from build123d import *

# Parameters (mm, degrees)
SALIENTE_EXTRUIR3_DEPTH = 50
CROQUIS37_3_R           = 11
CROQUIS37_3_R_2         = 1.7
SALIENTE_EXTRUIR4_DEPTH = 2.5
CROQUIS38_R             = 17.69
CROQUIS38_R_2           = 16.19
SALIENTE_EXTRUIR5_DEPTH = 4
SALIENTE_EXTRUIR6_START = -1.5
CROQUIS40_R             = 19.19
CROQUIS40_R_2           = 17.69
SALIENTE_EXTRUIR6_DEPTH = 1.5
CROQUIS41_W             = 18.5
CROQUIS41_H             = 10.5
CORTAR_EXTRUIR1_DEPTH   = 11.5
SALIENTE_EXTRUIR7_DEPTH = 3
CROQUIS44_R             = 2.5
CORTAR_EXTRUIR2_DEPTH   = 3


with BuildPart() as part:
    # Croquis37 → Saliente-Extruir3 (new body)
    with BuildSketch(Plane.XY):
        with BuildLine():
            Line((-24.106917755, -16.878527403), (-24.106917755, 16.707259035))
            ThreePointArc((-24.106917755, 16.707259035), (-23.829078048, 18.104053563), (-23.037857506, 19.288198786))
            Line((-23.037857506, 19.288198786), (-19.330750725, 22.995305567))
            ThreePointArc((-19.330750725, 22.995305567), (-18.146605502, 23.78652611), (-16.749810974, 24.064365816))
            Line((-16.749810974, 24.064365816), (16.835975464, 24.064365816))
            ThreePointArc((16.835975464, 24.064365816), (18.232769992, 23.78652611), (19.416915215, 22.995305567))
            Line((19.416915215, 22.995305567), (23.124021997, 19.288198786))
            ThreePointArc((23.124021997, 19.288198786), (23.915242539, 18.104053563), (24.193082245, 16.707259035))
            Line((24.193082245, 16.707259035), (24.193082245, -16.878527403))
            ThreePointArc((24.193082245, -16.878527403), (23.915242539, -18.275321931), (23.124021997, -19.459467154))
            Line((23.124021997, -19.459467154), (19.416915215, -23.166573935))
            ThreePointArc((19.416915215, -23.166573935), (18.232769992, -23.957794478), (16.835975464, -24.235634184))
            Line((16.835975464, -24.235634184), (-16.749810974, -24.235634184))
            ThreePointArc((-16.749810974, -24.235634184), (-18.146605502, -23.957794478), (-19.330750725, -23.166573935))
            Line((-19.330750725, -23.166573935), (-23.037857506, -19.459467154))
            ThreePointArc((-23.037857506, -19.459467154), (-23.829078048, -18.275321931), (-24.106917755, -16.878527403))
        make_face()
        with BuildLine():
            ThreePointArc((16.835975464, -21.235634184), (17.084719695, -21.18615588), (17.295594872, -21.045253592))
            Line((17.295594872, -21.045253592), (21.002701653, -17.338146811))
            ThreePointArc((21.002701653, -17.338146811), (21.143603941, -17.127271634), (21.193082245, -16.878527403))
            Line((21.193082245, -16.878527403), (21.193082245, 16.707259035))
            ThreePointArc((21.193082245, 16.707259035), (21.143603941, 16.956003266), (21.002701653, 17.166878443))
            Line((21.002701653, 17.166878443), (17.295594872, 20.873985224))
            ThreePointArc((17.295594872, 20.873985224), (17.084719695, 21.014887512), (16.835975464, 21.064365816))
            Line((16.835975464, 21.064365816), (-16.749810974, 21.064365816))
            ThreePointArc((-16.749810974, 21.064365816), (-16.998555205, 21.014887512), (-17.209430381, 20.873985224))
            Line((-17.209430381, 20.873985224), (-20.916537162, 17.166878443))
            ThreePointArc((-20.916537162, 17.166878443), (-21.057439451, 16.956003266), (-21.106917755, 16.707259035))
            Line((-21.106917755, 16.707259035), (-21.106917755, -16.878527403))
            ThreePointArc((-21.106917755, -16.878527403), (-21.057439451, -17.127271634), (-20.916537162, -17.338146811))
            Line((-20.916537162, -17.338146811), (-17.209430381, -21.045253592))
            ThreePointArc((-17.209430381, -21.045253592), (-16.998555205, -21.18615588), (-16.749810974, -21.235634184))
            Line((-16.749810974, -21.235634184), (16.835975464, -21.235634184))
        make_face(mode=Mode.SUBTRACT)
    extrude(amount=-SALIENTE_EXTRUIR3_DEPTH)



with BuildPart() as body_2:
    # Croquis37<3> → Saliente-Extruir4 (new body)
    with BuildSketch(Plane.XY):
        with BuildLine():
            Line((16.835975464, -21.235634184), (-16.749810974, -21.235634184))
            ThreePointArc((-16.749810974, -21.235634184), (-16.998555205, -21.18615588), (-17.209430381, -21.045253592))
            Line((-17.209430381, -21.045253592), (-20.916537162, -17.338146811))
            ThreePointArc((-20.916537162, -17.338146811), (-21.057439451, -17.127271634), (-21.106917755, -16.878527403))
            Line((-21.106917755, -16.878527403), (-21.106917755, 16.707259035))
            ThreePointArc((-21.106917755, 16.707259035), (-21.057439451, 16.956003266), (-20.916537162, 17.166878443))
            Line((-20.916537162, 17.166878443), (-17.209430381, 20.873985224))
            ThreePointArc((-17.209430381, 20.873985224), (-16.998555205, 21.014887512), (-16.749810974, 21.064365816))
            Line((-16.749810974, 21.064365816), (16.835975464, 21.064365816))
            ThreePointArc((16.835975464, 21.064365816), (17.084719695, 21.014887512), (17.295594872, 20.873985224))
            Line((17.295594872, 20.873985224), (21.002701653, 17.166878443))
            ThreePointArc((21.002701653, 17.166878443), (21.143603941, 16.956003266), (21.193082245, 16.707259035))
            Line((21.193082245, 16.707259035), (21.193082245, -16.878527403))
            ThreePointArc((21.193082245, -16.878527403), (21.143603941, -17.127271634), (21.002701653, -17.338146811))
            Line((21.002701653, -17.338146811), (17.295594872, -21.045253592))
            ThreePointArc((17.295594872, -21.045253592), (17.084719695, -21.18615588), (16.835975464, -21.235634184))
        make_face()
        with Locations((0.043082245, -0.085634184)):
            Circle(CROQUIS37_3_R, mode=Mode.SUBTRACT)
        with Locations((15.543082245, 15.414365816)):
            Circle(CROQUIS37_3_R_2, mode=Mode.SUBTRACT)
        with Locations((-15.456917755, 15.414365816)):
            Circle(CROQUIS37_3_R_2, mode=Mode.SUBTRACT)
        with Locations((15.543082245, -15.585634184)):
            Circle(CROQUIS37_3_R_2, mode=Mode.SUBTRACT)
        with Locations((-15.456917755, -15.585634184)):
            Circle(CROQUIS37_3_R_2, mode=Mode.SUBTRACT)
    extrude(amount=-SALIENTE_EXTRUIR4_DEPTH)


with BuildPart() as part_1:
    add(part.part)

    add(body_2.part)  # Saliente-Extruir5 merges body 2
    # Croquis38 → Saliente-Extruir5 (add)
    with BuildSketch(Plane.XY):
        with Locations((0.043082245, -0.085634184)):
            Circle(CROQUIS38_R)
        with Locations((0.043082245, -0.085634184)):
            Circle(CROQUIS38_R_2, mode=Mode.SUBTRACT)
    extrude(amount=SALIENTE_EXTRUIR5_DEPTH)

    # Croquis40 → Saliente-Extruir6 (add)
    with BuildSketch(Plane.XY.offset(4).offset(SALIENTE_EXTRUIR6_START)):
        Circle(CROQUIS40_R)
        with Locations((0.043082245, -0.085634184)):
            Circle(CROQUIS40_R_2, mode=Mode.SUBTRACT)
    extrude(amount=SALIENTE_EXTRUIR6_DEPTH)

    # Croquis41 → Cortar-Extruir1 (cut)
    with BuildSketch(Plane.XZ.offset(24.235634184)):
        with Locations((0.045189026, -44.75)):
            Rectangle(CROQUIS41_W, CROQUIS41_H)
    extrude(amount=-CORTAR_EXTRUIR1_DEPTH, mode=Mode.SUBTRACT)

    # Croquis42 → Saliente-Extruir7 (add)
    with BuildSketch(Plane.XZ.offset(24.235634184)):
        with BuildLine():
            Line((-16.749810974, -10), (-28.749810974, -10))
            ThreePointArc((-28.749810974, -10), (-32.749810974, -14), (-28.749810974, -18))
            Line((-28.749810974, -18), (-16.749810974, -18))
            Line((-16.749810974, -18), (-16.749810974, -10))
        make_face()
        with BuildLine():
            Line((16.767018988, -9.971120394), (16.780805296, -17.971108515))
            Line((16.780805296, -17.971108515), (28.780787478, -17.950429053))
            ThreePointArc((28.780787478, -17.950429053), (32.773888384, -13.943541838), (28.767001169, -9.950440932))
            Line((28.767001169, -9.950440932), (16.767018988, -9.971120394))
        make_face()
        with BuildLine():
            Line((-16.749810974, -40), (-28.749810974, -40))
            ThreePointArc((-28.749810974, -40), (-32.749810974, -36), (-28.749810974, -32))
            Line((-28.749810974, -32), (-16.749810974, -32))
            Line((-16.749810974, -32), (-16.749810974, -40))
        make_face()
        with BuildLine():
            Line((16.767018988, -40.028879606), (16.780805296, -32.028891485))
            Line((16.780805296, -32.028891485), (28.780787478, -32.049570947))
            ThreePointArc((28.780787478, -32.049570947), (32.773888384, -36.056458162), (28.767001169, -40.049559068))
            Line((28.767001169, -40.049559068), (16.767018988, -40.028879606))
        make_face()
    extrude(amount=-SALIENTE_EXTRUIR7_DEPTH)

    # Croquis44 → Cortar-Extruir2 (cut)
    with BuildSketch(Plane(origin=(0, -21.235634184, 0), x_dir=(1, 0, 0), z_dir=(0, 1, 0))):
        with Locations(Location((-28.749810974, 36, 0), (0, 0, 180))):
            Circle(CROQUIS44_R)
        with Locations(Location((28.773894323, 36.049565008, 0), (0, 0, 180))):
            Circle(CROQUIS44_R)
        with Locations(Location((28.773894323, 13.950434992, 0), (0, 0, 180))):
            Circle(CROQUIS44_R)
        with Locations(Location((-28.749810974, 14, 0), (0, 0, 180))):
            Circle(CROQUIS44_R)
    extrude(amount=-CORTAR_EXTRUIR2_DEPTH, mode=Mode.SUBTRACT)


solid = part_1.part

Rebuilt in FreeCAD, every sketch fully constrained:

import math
import FreeCAD as App
import Part
import Sketcher
from FreeCAD import Vector


def add_polygon(sketch, points):
    """Adds a closed chain of lines whose ends are joined by coincident constraints."""
    first, n = sketch.GeometryCount, len(points)
    for a, b in zip(points, points[1:] + points[:1]):
        sketch.addGeometry(Part.LineSegment(App.Vector(*a, 0), App.Vector(*b, 0)), False)
    for i in range(n):
        sketch.addConstraint(Sketcher.Constraint("Coincident", first + i, 2, first + (i + 1) % n, 1))

doc = App.newDocument("Part")
body = doc.addObject("PartDesign::Body", "Body")

# Sketch on XY plane
sketch1 = body.newObject("Sketcher::SketchObject", "Sketch")
sketch1.AttachmentSupport = (doc.getObject("XY_Plane"), [""])
sketch1.MapMode = "FlatFace"
sketch1.addGeometry(Part.LineSegment(Vector(-24.11, 16.71, 0), Vector(-24.11, -16.88, 0)), False)
sketch1.addGeometry(Part.ArcOfCircle(Part.Circle(Vector(-20.46, -16.88, 0), Vector(0, 0, 1), 3.65), math.radians(-180), math.radians(-135)), False)
sketch1.addGeometry(Part.LineSegment(Vector(-23.04, -19.46, 0), Vector(-19.33, -23.17, 0)), False)
sketch1.addGeometry(Part.ArcOfCircle(Part.Circle(Vector(-16.75, -20.59, 0), Vector(0, 0, 1), 3.65), math.radians(-135), math.radians(-90)), False)
sketch1.addGeometry(Part.LineSegment(Vector(-16.75, -24.24, 0), Vector(16.84, -24.24, 0)), False)
sketch1.addGeometry(Part.ArcOfCircle(Part.Circle(Vector(16.84, -20.59, 0), Vector(0, 0, 1), 3.65), math.radians(-90), math.radians(-45)), False)
sketch1.addGeometry(Part.LineSegment(Vector(19.42, -23.17, 0), Vector(23.12, -19.46, 0)), False)
sketch1.addGeometry(Part.ArcOfCircle(Part.Circle(Vector(20.54, -16.88, 0), Vector(0, 0, 1), 3.65), math.radians(-45), math.radians(0)), False)
sketch1.addGeometry(Part.LineSegment(Vector(24.19, -16.88, 0), Vector(24.19, 16.71, 0)), False)
sketch1.addGeometry(Part.ArcOfCircle(Part.Circle(Vector(20.54, 16.71, 0), Vector(0, 0, 1), 3.65), math.radians(0), math.radians(45)), False)
sketch1.addGeometry(Part.LineSegment(Vector(23.12, 19.29, 0), Vector(19.42, 23, 0)), False)
sketch1.addGeometry(Part.ArcOfCircle(Part.Circle(Vector(16.84, 20.41, 0), Vector(0, 0, 1), 3.65), math.radians(45), math.radians(90)), False)
sketch1.addGeometry(Part.LineSegment(Vector(16.84, 24.06, 0), Vector(-16.75, 24.06, 0)), False)
sketch1.addGeometry(Part.ArcOfCircle(Part.Circle(Vector(-16.75, 20.41, 0), Vector(0, 0, 1), 3.65), math.radians(90), math.radians(135)), False)
sketch1.addGeometry(Part.LineSegment(Vector(-19.33, 23, 0), Vector(-23.04, 19.29, 0)), False)
sketch1.addGeometry(Part.ArcOfCircle(Part.Circle(Vector(-20.46, 16.71, 0), Vector(0, 0, 1), 3.65), math.radians(135), math.radians(180)), False)
sketch1.addGeometry(Part.LineSegment(Vector(16.84, -21.24, 0), Vector(-16.75, -21.24, 0)), False)
sketch1.addGeometry(Part.ArcOfCircle(Part.Circle(Vector(-16.75, -20.59, 0), Vector(0, 0, 1), 0.65), math.radians(-135), math.radians(-90)), False)
sketch1.addGeometry(Part.LineSegment(Vector(-17.21, -21.05, 0), Vector(-20.92, -17.34, 0)), False)
sketch1.addGeometry(Part.ArcOfCircle(Part.Circle(Vector(-20.46, -16.88, 0), Vector(0, 0, 1), 0.65), math.radians(180), math.radians(225)), False)
sketch1.addGeometry(Part.LineSegment(Vector(-21.11, -16.88, 0), Vector(-21.11, 16.71, 0)), False)
sketch1.addGeometry(Part.ArcOfCircle(Part.Circle(Vector(-20.46, 16.71, 0), Vector(0, 0, 1), 0.65), math.radians(135), math.radians(180)), False)
sketch1.addGeometry(Part.LineSegment(Vector(-20.92, 17.17, 0), Vector(-17.21, 20.87, 0)), False)
sketch1.addGeometry(Part.ArcOfCircle(Part.Circle(Vector(-16.75, 20.41, 0), Vector(0, 0, 1), 0.65), math.radians(90), math.radians(135)), False)
sketch1.addGeometry(Part.LineSegment(Vector(-16.75, 21.06, 0), Vector(16.84, 21.06, 0)), False)
sketch1.addGeometry(Part.ArcOfCircle(Part.Circle(Vector(16.84, 20.41, 0), Vector(0, 0, 1), 0.65), math.radians(45), math.radians(90)), False)
sketch1.addGeometry(Part.LineSegment(Vector(17.3, 20.87, 0), Vector(21, 17.17, 0)), False)
sketch1.addGeometry(Part.ArcOfCircle(Part.Circle(Vector(20.54, 16.71, 0), Vector(0, 0, 1), 0.65), math.radians(0), math.radians(45)), False)
sketch1.addGeometry(Part.LineSegment(Vector(21.19, 16.71, 0), Vector(21.19, -16.88, 0)), False)
sketch1.addGeometry(Part.ArcOfCircle(Part.Circle(Vector(20.54, -16.88, 0), Vector(0, 0, 1), 0.65), math.radians(-45), math.radians(0)), False)
sketch1.addGeometry(Part.LineSegment(Vector(21, -17.34, 0), Vector(17.3, -21.05, 0)), False)
sketch1.addGeometry(Part.ArcOfCircle(Part.Circle(Vector(16.84, -20.59, 0), Vector(0, 0, 1), 0.65), math.radians(-90), math.radians(-45)), False)
sketch1.addConstraint(Sketcher.Constraint("Tangent", 0, 2, 1, 1))
sketch1.addConstraint(Sketcher.Constraint("Tangent", 1, 2, 2, 1))
sketch1.addConstraint(Sketcher.Constraint("Tangent", 2, 2, 3, 1))
sketch1.addConstraint(Sketcher.Constraint("Tangent", 3, 2, 4, 1))
sketch1.addConstraint(Sketcher.Constraint("Tangent", 4, 2, 5, 1))
sketch1.addConstraint(Sketcher.Constraint("Tangent", 5, 2, 6, 1))
sketch1.addConstraint(Sketcher.Constraint("Tangent", 6, 2, 7, 1))
sketch1.addConstraint(Sketcher.Constraint("Tangent", 7, 2, 8, 1))
sketch1.addConstraint(Sketcher.Constraint("Tangent", 8, 2, 9, 1))
sketch1.addConstraint(Sketcher.Constraint("Tangent", 9, 2, 10, 1))
sketch1.addConstraint(Sketcher.Constraint("Tangent", 10, 2, 11, 1))
sketch1.addConstraint(Sketcher.Constraint("Tangent", 11, 2, 12, 1))
sketch1.addConstraint(Sketcher.Constraint("Tangent", 12, 2, 13, 1))
sketch1.addConstraint(Sketcher.Constraint("Tangent", 13, 2, 14, 1))
sketch1.addConstraint(Sketcher.Constraint("Tangent", 14, 2, 15, 1))
sketch1.addConstraint(Sketcher.Constraint("Tangent", 15, 2, 0, 1))
sketch1.addConstraint(Sketcher.Constraint("Tangent", 16, 2, 17, 2))
sketch1.addConstraint(Sketcher.Constraint("Tangent", 17, 1, 18, 1))
sketch1.addConstraint(Sketcher.Constraint("Tangent", 18, 2, 19, 2))
sketch1.addConstraint(Sketcher.Constraint("Tangent", 19, 1, 20, 1))
sketch1.addConstraint(Sketcher.Constraint("Tangent", 20, 2, 21, 2))
sketch1.addConstraint(Sketcher.Constraint("Tangent", 21, 1, 22, 1))
sketch1.addConstraint(Sketcher.Constraint("Tangent", 22, 2, 23, 2))
sketch1.addConstraint(Sketcher.Constraint("Tangent", 23, 1, 24, 1))
sketch1.addConstraint(Sketcher.Constraint("Tangent", 24, 2, 25, 2))
sketch1.addConstraint(Sketcher.Constraint("Tangent", 25, 1, 26, 1))
sketch1.addConstraint(Sketcher.Constraint("Tangent", 26, 2, 27, 2))
sketch1.addConstraint(Sketcher.Constraint("Tangent", 27, 1, 28, 1))
sketch1.addConstraint(Sketcher.Constraint("Tangent", 28, 2, 29, 2))
sketch1.addConstraint(Sketcher.Constraint("Tangent", 29, 1, 30, 1))
sketch1.addConstraint(Sketcher.Constraint("Tangent", 30, 2, 31, 2))
sketch1.addConstraint(Sketcher.Constraint("Tangent", 31, 1, 16, 1))
sketch1.addConstraint(Sketcher.Constraint("Vertical", 0))
sketch1.addConstraint(Sketcher.Constraint("Horizontal", 4))
sketch1.addConstraint(Sketcher.Constraint("Vertical", 8))
sketch1.addConstraint(Sketcher.Constraint("Horizontal", 12))
sketch1.addConstraint(Sketcher.Constraint("Horizontal", 16))
sketch1.addConstraint(Sketcher.Constraint("Vertical", 20))
sketch1.addConstraint(Sketcher.Constraint("Horizontal", 24))
sketch1.addConstraint(Sketcher.Constraint("Vertical", 28))
sketch1.addConstraint(Sketcher.Constraint("Coincident", 17, 3, 3, 3))
sketch1.addConstraint(Sketcher.Constraint("Coincident", 19, 3, 1, 3))
sketch1.addConstraint(Sketcher.Constraint("Coincident", 21, 3, 15, 3))
sketch1.addConstraint(Sketcher.Constraint("Coincident", 23, 3, 13, 3))
sketch1.addConstraint(Sketcher.Constraint("Coincident", 25, 3, 11, 3))
sketch1.addConstraint(Sketcher.Constraint("Coincident", 27, 3, 9, 3))
sketch1.addConstraint(Sketcher.Constraint("Coincident", 29, 3, 7, 3))
sketch1.addConstraint(Sketcher.Constraint("Coincident", 31, 3, 5, 3))
sketch1.addConstraint(Sketcher.Constraint("Equal", 1, 3))
sketch1.addConstraint(Sketcher.Constraint("Equal", 3, 5))
sketch1.addConstraint(Sketcher.Constraint("Equal", 5, 7))
sketch1.addConstraint(Sketcher.Constraint("Equal", 7, 9))
sketch1.addConstraint(Sketcher.Constraint("Equal", 9, 11))
sketch1.addConstraint(Sketcher.Constraint("Equal", 11, 13))
sketch1.addConstraint(Sketcher.Constraint("Equal", 13, 15))
sketch1.addConstraint(Sketcher.Constraint("Equal", 17, 19))
sketch1.addConstraint(Sketcher.Constraint("Equal", 21, 23))
sketch1.addConstraint(Sketcher.Constraint("Equal", 25, 27))
sketch1.addConstraint(Sketcher.Constraint("Perpendicular", 2, 6))
sketch1.addConstraint(Sketcher.Constraint("Perpendicular", 6, 10))
sketch1.addConstraint(Sketcher.Constraint("Perpendicular", 10, 14))
sketch1.addConstraint(Sketcher.Constraint("Horizontal", 1, 3, 7, 3))
sketch1.addConstraint(Sketcher.Constraint("Horizontal", 9, 3, 15, 3))
sketch1.addConstraint(Sketcher.Constraint("Horizontal", 2, 2, 5, 2))
sketch1.addConstraint(Sketcher.Constraint("Vertical", 5, 3, 11, 3))
sketch1.addConstraint(Sketcher.Constraint("Equal", 24, 0))
sketch1.addConstraint(Sketcher.Constraint("Radius", 1, 3.65))
sketch1.addConstraint(Sketcher.Constraint("Radius", 17, 0.65))
sketch1.addConstraint(Sketcher.Constraint("DistanceX", 1, 3, 7, 3, 41.0))
sketch1.addConstraint(Sketcher.Constraint("DistanceY", -1, 1, 9, 2, 19.288199))
sketch1.addConstraint(Sketcher.Constraint("DistanceX", -1, 1, 26, 2, 21.002702))
sketch1.addConstraint(Sketcher.Constraint("Distance", 2, 5.242641))
pad1 = body.newObject("PartDesign::Pad", "Pad")
pad1.Profile = sketch1
pad1.Length = 50
pad1.Reversed = True
body2 = doc.addObject("PartDesign::Body", "Body001")

# Sketch on XY plane
sketch2 = body2.newObject("Sketcher::SketchObject", "Sketch001")
sketch2.AttachmentSupport = (doc.getObject("XY_Plane001"), [""])
sketch2.MapMode = "FlatFace"
sketch2.addGeometry(Part.LineSegment(Vector(-16.75, -21.24, 0), Vector(16.84, -21.24, 0)), False)
sketch2.addGeometry(Part.ArcOfCircle(Part.Circle(Vector(16.84, -20.59, 0), Vector(0, 0, 1), 0.65), math.radians(-90), math.radians(-45)), False)
sketch2.addGeometry(Part.LineSegment(Vector(17.3, -21.05, 0), Vector(21, -17.34, 0)), False)
sketch2.addGeometry(Part.ArcOfCircle(Part.Circle(Vector(20.54, -16.88, 0), Vector(0, 0, 1), 0.65), math.radians(-45), math.radians(0)), False)
sketch2.addGeometry(Part.LineSegment(Vector(21.19, -16.88, 0), Vector(21.19, 16.71, 0)), False)
sketch2.addGeometry(Part.ArcOfCircle(Part.Circle(Vector(20.54, 16.71, 0), Vector(0, 0, 1), 0.65), math.radians(0), math.radians(45)), False)
sketch2.addGeometry(Part.LineSegment(Vector(21, 17.17, 0), Vector(17.3, 20.87, 0)), False)
sketch2.addGeometry(Part.ArcOfCircle(Part.Circle(Vector(16.84, 20.41, 0), Vector(0, 0, 1), 0.65), math.radians(45), math.radians(90)), False)
sketch2.addGeometry(Part.LineSegment(Vector(16.84, 21.06, 0), Vector(-16.75, 21.06, 0)), False)
sketch2.addGeometry(Part.ArcOfCircle(Part.Circle(Vector(-16.75, 20.41, 0), Vector(0, 0, 1), 0.65), math.radians(90), math.radians(135)), False)
sketch2.addGeometry(Part.LineSegment(Vector(-17.21, 20.87, 0), Vector(-20.92, 17.17, 0)), False)
sketch2.addGeometry(Part.ArcOfCircle(Part.Circle(Vector(-20.46, 16.71, 0), Vector(0, 0, 1), 0.65), math.radians(135), math.radians(180)), False)
sketch2.addGeometry(Part.LineSegment(Vector(-21.11, 16.71, 0), Vector(-21.11, -16.88, 0)), False)
sketch2.addGeometry(Part.ArcOfCircle(Part.Circle(Vector(-20.46, -16.88, 0), Vector(0, 0, 1), 0.65), math.radians(180), math.radians(225)), False)
sketch2.addGeometry(Part.LineSegment(Vector(-20.92, -17.34, 0), Vector(-17.21, -21.05, 0)), False)
sketch2.addGeometry(Part.ArcOfCircle(Part.Circle(Vector(-16.75, -20.59, 0), Vector(0, 0, 1), 0.65), math.radians(-135), math.radians(-90)), False)
sketch2.addGeometry(Part.Circle(Vector(15.54, -15.59, 0), Vector(0, 0, 1), 1.7), False)
sketch2.addGeometry(Part.Circle(Vector(-15.46, -15.59, 0), Vector(0, 0, 1), 1.7), False)
sketch2.addGeometry(Part.Circle(Vector(15.54, 15.41, 0), Vector(0, 0, 1), 1.7), False)
sketch2.addGeometry(Part.Circle(Vector(0.04, -0.09, 0), Vector(0, 0, 1), 11), False)
sketch2.addGeometry(Part.Circle(Vector(-15.46, 15.41, 0), Vector(0, 0, 1), 1.7), False)
sketch2.addConstraint(Sketcher.Constraint("Tangent", 0, 2, 1, 1))
sketch2.addConstraint(Sketcher.Constraint("Tangent", 1, 2, 2, 1))
sketch2.addConstraint(Sketcher.Constraint("Tangent", 2, 2, 3, 1))
sketch2.addConstraint(Sketcher.Constraint("Tangent", 3, 2, 4, 1))
sketch2.addConstraint(Sketcher.Constraint("Tangent", 4, 2, 5, 1))
sketch2.addConstraint(Sketcher.Constraint("Tangent", 5, 2, 6, 1))
sketch2.addConstraint(Sketcher.Constraint("Tangent", 6, 2, 7, 1))
sketch2.addConstraint(Sketcher.Constraint("Tangent", 7, 2, 8, 1))
sketch2.addConstraint(Sketcher.Constraint("Tangent", 8, 2, 9, 1))
sketch2.addConstraint(Sketcher.Constraint("Tangent", 9, 2, 10, 1))
sketch2.addConstraint(Sketcher.Constraint("Tangent", 10, 2, 11, 1))
sketch2.addConstraint(Sketcher.Constraint("Tangent", 11, 2, 12, 1))
sketch2.addConstraint(Sketcher.Constraint("Tangent", 12, 2, 13, 1))
sketch2.addConstraint(Sketcher.Constraint("Tangent", 13, 2, 14, 1))
sketch2.addConstraint(Sketcher.Constraint("Tangent", 14, 2, 15, 1))
sketch2.addConstraint(Sketcher.Constraint("Tangent", 15, 2, 0, 1))
sketch2.addConstraint(Sketcher.Constraint("Horizontal", 0))
sketch2.addConstraint(Sketcher.Constraint("Vertical", 4))
sketch2.addConstraint(Sketcher.Constraint("Horizontal", 8))
sketch2.addConstraint(Sketcher.Constraint("Vertical", 12))
sketch2.addConstraint(Sketcher.Constraint("Equal", 1, 3))
sketch2.addConstraint(Sketcher.Constraint("Equal", 3, 5))
sketch2.addConstraint(Sketcher.Constraint("Equal", 5, 7))
sketch2.addConstraint(Sketcher.Constraint("Equal", 7, 9))
sketch2.addConstraint(Sketcher.Constraint("Equal", 9, 11))
sketch2.addConstraint(Sketcher.Constraint("Equal", 11, 13))
sketch2.addConstraint(Sketcher.Constraint("Equal", 13, 15))
sketch2.addConstraint(Sketcher.Constraint("Equal", 16, 17))
sketch2.addConstraint(Sketcher.Constraint("Equal", 17, 18))
sketch2.addConstraint(Sketcher.Constraint("Equal", 18, 20))
sketch2.addConstraint(Sketcher.Constraint("Perpendicular", 2, 6))
sketch2.addConstraint(Sketcher.Constraint("Perpendicular", 6, 10))
sketch2.addConstraint(Sketcher.Constraint("Perpendicular", 10, 14))
sketch2.addConstraint(Sketcher.Constraint("Horizontal", 5, 3, 11, 3))
sketch2.addConstraint(Sketcher.Constraint("Horizontal", 3, 3, 13, 3))
sketch2.addConstraint(Sketcher.Constraint("Horizontal", 16, 3, 17, 3))
sketch2.addConstraint(Sketcher.Constraint("Horizontal", 18, 3, 20, 3))
sketch2.addConstraint(Sketcher.Constraint("Horizontal", 6, 2, 9, 2))
sketch2.addConstraint(Sketcher.Constraint("Vertical", 1, 3, 7, 3))
sketch2.addConstraint(Sketcher.Constraint("Vertical", 16, 3, 18, 3))
sketch2.addConstraint(Sketcher.Constraint("Vertical", 17, 3, 20, 3))
sketch2.addConstraint(Sketcher.Constraint("Equal", 8, 4))
sketch2.addConstraint(Sketcher.Constraint("Diameter", 19, 22.0))
sketch2.addConstraint(Sketcher.Constraint("Diameter", 16, 3.4))
sketch2.addConstraint(Sketcher.Constraint("Radius", 1, 0.65))
sketch2.addConstraint(Sketcher.Constraint("DistanceY", 1, 3, 7, 3, 41.0))
sketch2.addConstraint(Sketcher.Constraint("DistanceY", 1, 3, 16, 3, 5.0))
sketch2.addConstraint(Sketcher.Constraint("DistanceX", 16, 3, 3, 3, 5.0))
sketch2.addConstraint(Sketcher.Constraint("DistanceX", 13, 3, 17, 3, 5.0))
sketch2.addConstraint(Sketcher.Constraint("DistanceY", 18, 3, 7, 3, 5.0))
sketch2.addConstraint(Sketcher.Constraint("DistanceX", 19, 3, 16, 3, 15.5))
sketch2.addConstraint(Sketcher.Constraint("DistanceY", 16, 3, 19, 3, 15.5))
sketch2.addConstraint(Sketcher.Constraint("DistanceX", -1, 1, 2, 2, 21.002702))
sketch2.addConstraint(Sketcher.Constraint("Distance", 2, 5.242641))
sketch2.addConstraint(Sketcher.Constraint("DistanceY", -1, 1, 5, 3, 16.707259))
pad2 = body2.newObject("PartDesign::Pad", "Pad001")
pad2.Profile = sketch2
pad2.Length = 2.5
pad2.Reversed = True
doc.recompute()

boolean = body.newObject("PartDesign::Boolean", "Boolean")
boolean.Type = "Fuse"
boolean.addObjects([body2])

# Sketch on XY plane
sketch3 = body.newObject("Sketcher::SketchObject", "Sketch002")
sketch3.AttachmentSupport = (doc.getObject("XY_Plane"), [""])
sketch3.MapMode = "FlatFace"
sketch3.addGeometry(Part.Circle(Vector(0, 0, 0), Vector(0, 0, 1), 18), False)
sketch3.addGeometry(Part.Circle(Vector(0, 0, 0), Vector(0, 0, 1), 16), False)
sketch3.addConstraint(Sketcher.Constraint("Coincident", 1, 3, 0, 3))
sketch3.addConstraint(Sketcher.Constraint("Diameter", 0, 35.38))
sketch3.addConstraint(Sketcher.Constraint("Diameter", 1, 32.38))
sketch3.addConstraint(Sketcher.Constraint("DistanceX", -1, 1, 0, 3, 0.043082))
sketch3.addConstraint(Sketcher.Constraint("DistanceY", 0, 3, -1, 1, 0.085634))
pad3 = body.newObject("PartDesign::Pad", "Pad002")
pad3.Profile = sketch3
pad3.Length = 4

# Sketch on XY plane
sketch4 = body.newObject("Sketcher::SketchObject", "Sketch003")
sketch4.AttachmentSupport = (doc.getObject("XY_Plane"), [""])
sketch4.MapMode = "FlatFace"
sketch4.AttachmentOffset = App.Placement(Vector(0, 0, 2.5), App.Rotation())
sketch4.addGeometry(Part.Circle(Vector(0, 0, 0), Vector(0, 0, 1), 19), False)
sketch4.addGeometry(Part.Circle(Vector(0, 0, 0), Vector(0, 0, 1), 18), False)
sketch4.addConstraint(Sketcher.Constraint("Coincident", 0, 3, -1, 1))
sketch4.addConstraint(Sketcher.Constraint("Diameter", 0, 38.38))
sketch4.addConstraint(Sketcher.Constraint("Diameter", 1, 35.38))
sketch4.addConstraint(Sketcher.Constraint("DistanceX", -1, 1, 1, 3, 0.043082))
sketch4.addConstraint(Sketcher.Constraint("DistanceY", 1, 3, -1, 1, 0.085634))
pad4 = body.newObject("PartDesign::Pad", "Pad003")
pad4.Profile = sketch4
pad4.Length = 1.5

# Sketch on XZ plane
sketch5 = body.newObject("Sketcher::SketchObject", "Sketch004")
sketch5.AttachmentSupport = (doc.getObject("XZ_Plane"), [""])
sketch5.MapMode = "FlatFace"
sketch5.AttachmentOffset = App.Placement(Vector(0, 0, 24.235634), App.Rotation())
add_polygon(sketch5, [(-9, -40), (-9, -50), (9, -50), (9, -40)])  # lines 0-3
sketch5.addConstraint(Sketcher.Constraint("Vertical", 0))
sketch5.addConstraint(Sketcher.Constraint("Horizontal", 1))
sketch5.addConstraint(Sketcher.Constraint("Vertical", 2))
sketch5.addConstraint(Sketcher.Constraint("Horizontal", 3))
sketch5.addConstraint(Sketcher.Constraint("DistanceX", 1, 1, 1, 2, 18.5))
sketch5.addConstraint(Sketcher.Constraint("DistanceY", 0, 2, 0, 1, 10.5))
sketch5.addConstraint(Sketcher.Constraint("DistanceY", 0, 2, -1, 1, 50.0))
sketch5.addConstraint(Sketcher.Constraint("DistanceX", 0, 2, -1, 1, 9.204811))
pocket1 = body.newObject("PartDesign::Pocket", "Pocket")
pocket1.Profile = sketch5
pocket1.Length = 11.5

# Sketch on XZ plane
sketch6 = body.newObject("Sketcher::SketchObject", "Sketch005")
sketch6.AttachmentSupport = (doc.getObject("XZ_Plane"), [""])
sketch6.MapMode = "FlatFace"
sketch6.AttachmentOffset = App.Placement(Vector(0, 0, 24.235634), App.Rotation())
sketch6.addGeometry(Part.LineSegment(Vector(-16.7, -10, 0), Vector(-28.7, -10, 0)), False)
sketch6.addGeometry(Part.ArcOfCircle(Part.Circle(Vector(-28.7, -14, 0), Vector(0, 0, 1), 4), math.radians(90), math.radians(270)), False)
sketch6.addGeometry(Part.LineSegment(Vector(-28.7, -18, 0), Vector(-16.7, -18, 0)), False)
sketch6.addGeometry(Part.LineSegment(Vector(-16.7, -18, 0), Vector(-16.7, -10, 0)), False)
sketch6.addGeometry(Part.LineSegment(Vector(16.8, -10, 0), Vector(16.8, -18, 0)), False)
sketch6.addGeometry(Part.LineSegment(Vector(16.8, -18, 0), Vector(28.8, -18, 0)), False)
sketch6.addGeometry(Part.ArcOfCircle(Part.Circle(Vector(28.8, -14, 0), Vector(0, 0, 1), 4), math.radians(-90), math.radians(90)), False)
sketch6.addGeometry(Part.LineSegment(Vector(28.8, -10, 0), Vector(16.8, -10, 0)), False)
sketch6.addGeometry(Part.LineSegment(Vector(-28.7, -40, 0), Vector(-16.7, -40, 0)), False)
sketch6.addGeometry(Part.LineSegment(Vector(-16.7, -40, 0), Vector(-16.7, -32, 0)), False)
sketch6.addGeometry(Part.LineSegment(Vector(-16.7, -32, 0), Vector(-28.7, -32, 0)), False)
sketch6.addGeometry(Part.ArcOfCircle(Part.Circle(Vector(-28.7, -36, 0), Vector(0, 0, 1), 4), math.radians(90), math.radians(270)), False)
sketch6.addGeometry(Part.LineSegment(Vector(16.8, -32, 0), Vector(16.8, -40, 0)), False)
sketch6.addGeometry(Part.LineSegment(Vector(16.8, -40, 0), Vector(28.8, -40, 0)), False)
sketch6.addGeometry(Part.ArcOfCircle(Part.Circle(Vector(28.8, -36, 0), Vector(0, 0, 1), 4), math.radians(-90), math.radians(90)), False)
sketch6.addGeometry(Part.LineSegment(Vector(28.8, -32, 0), Vector(16.8, -32, 0)), False)
sketch6.addConstraint(Sketcher.Constraint("Tangent", 0, 2, 1, 1))
sketch6.addConstraint(Sketcher.Constraint("Tangent", 1, 2, 2, 1))
sketch6.addConstraint(Sketcher.Constraint("Coincident", 2, 2, 3, 1))
sketch6.addConstraint(Sketcher.Constraint("Coincident", 3, 2, 0, 1))
sketch6.addConstraint(Sketcher.Constraint("Coincident", 4, 2, 5, 1))
sketch6.addConstraint(Sketcher.Constraint("Tangent", 5, 2, 6, 1))
sketch6.addConstraint(Sketcher.Constraint("Tangent", 6, 2, 7, 1))
sketch6.addConstraint(Sketcher.Constraint("Coincident", 7, 2, 4, 1))
sketch6.addConstraint(Sketcher.Constraint("Coincident", 8, 2, 9, 1))
sketch6.addConstraint(Sketcher.Constraint("Coincident", 9, 2, 10, 1))
sketch6.addConstraint(Sketcher.Constraint("Tangent", 10, 2, 11, 1))
sketch6.addConstraint(Sketcher.Constraint("Tangent", 11, 2, 8, 1))
sketch6.addConstraint(Sketcher.Constraint("Coincident", 12, 2, 13, 1))
sketch6.addConstraint(Sketcher.Constraint("Tangent", 13, 2, 14, 1))
sketch6.addConstraint(Sketcher.Constraint("Tangent", 14, 2, 15, 1))
sketch6.addConstraint(Sketcher.Constraint("Coincident", 15, 2, 12, 1))
sketch6.addConstraint(Sketcher.Constraint("Horizontal", 0))
sketch6.addConstraint(Sketcher.Constraint("Horizontal", 2))
sketch6.addConstraint(Sketcher.Constraint("Vertical", 3))
sketch6.addConstraint(Sketcher.Constraint("Horizontal", 8))
sketch6.addConstraint(Sketcher.Constraint("Vertical", 9))
sketch6.addConstraint(Sketcher.Constraint("Horizontal", 10))
sketch6.addConstraint(Sketcher.Constraint("Equal", 1, 6))
sketch6.addConstraint(Sketcher.Constraint("Equal", 6, 11))
sketch6.addConstraint(Sketcher.Constraint("Equal", 11, 14))
sketch6.addConstraint(Sketcher.Constraint("Perpendicular", 4, 5))
sketch6.addConstraint(Sketcher.Constraint("Parallel", 5, 7))
sketch6.addConstraint(Sketcher.Constraint("Perpendicular", 12, 13))
sketch6.addConstraint(Sketcher.Constraint("Parallel", 13, 15))
sketch6.addConstraint(Sketcher.Constraint("Vertical", 1, 3, 11, 3))
sketch6.addConstraint(Sketcher.Constraint("Vertical", 6, 3, 14, 3))
sketch6.addConstraint(Sketcher.Constraint("Vertical", 3, 2, 8, 2))
sketch6.addConstraint(Sketcher.Constraint("Vertical", 7, 2, 12, 2))
sketch6.addConstraint(Sketcher.Constraint("Vertical", 6, 2, 13, 2))
sketch6.addConstraint(Sketcher.Constraint("Radius", 1, 4.0))
sketch6.addConstraint(Sketcher.Constraint("DistanceX", 0, 2, 0, 1, 12.0))
sketch6.addConstraint(Sketcher.Constraint("Distance", 5, 12.0))
sketch6.addConstraint(Sketcher.Constraint("DistanceY", 1, 3, -1, 1, 14.0))
sketch6.addConstraint(Sketcher.Constraint("DistanceY", 11, 3, -1, 1, 36.0))
sketch6.addConstraint(Sketcher.Constraint("DistanceX", -1, 1, 6, 2, 28.767001))
sketch6.addConstraint(Sketcher.Constraint("DistanceX", 2, 2, 5, 2, 45.530598))
sketch6.addConstraint(Sketcher.Constraint("DistanceX", 1, 3, -1, 1, 28.749811))
sketch6.addConstraint(Sketcher.Constraint("DistanceY", 4, 2, -1, 1, 17.971109))
sketch6.addConstraint(Sketcher.Constraint("DistanceY", 12, 2, -1, 1, 40.02888))
pad5 = body.newObject("PartDesign::Pad", "Pad004")
pad5.Profile = sketch6
pad5.Length = 3
pad5.Reversed = True

# Sketch on XZ plane
sketch7 = body.newObject("Sketcher::SketchObject", "Sketch006")
sketch7.AttachmentSupport = (doc.getObject("XZ_Plane"), [""])
sketch7.MapMode = "FlatFace"
sketch7.AttachmentOffset = App.Placement(Vector(0, 0, 21.235634), App.Rotation())
sketch7.addGeometry(Part.Circle(Vector(-28.7, -36, 0), Vector(0, 0, 1), 2.5), False)
sketch7.addGeometry(Part.Circle(Vector(28.8, -36, 0), Vector(0, 0, 1), 2.5), False)
sketch7.addGeometry(Part.Circle(Vector(28.8, -14, 0), Vector(0, 0, 1), 2.5), False)
sketch7.addGeometry(Part.Circle(Vector(-28.7, -14, 0), Vector(0, 0, 1), 2.5), False)
sketch7.addConstraint(Sketcher.Constraint("Equal", 0, 1))
sketch7.addConstraint(Sketcher.Constraint("Equal", 1, 2))
sketch7.addConstraint(Sketcher.Constraint("Equal", 2, 3))
sketch7.addConstraint(Sketcher.Constraint("Vertical", 1, 3, 2, 3))
sketch7.addConstraint(Sketcher.Constraint("Vertical", 0, 3, 3, 3))
sketch7.addConstraint(Sketcher.Constraint("Diameter", 0, 5.0))
sketch7.addConstraint(Sketcher.Constraint("DistanceY", 0, 3, -1, 1, 36.0))
sketch7.addConstraint(Sketcher.Constraint("DistanceY", 3, 3, -1, 1, 14.0))
sketch7.addConstraint(Sketcher.Constraint("DistanceX", 0, 3, -1, 1, 28.749811))
sketch7.addConstraint(Sketcher.Constraint("DistanceY", 1, 3, 2, 3, 22.09913))
sketch7.addConstraint(Sketcher.Constraint("DistanceX", -1, 1, 1, 3, 28.773894))
sketch7.addConstraint(Sketcher.Constraint("DistanceY", 1, 3, -1, 1, 36.049565))
pocket2 = body.newObject("PartDesign::Pocket", "Pocket001")
pocket2.Profile = sketch7
pocket2.Length = 3
pocket2.Reversed = True

doc.recompute()
